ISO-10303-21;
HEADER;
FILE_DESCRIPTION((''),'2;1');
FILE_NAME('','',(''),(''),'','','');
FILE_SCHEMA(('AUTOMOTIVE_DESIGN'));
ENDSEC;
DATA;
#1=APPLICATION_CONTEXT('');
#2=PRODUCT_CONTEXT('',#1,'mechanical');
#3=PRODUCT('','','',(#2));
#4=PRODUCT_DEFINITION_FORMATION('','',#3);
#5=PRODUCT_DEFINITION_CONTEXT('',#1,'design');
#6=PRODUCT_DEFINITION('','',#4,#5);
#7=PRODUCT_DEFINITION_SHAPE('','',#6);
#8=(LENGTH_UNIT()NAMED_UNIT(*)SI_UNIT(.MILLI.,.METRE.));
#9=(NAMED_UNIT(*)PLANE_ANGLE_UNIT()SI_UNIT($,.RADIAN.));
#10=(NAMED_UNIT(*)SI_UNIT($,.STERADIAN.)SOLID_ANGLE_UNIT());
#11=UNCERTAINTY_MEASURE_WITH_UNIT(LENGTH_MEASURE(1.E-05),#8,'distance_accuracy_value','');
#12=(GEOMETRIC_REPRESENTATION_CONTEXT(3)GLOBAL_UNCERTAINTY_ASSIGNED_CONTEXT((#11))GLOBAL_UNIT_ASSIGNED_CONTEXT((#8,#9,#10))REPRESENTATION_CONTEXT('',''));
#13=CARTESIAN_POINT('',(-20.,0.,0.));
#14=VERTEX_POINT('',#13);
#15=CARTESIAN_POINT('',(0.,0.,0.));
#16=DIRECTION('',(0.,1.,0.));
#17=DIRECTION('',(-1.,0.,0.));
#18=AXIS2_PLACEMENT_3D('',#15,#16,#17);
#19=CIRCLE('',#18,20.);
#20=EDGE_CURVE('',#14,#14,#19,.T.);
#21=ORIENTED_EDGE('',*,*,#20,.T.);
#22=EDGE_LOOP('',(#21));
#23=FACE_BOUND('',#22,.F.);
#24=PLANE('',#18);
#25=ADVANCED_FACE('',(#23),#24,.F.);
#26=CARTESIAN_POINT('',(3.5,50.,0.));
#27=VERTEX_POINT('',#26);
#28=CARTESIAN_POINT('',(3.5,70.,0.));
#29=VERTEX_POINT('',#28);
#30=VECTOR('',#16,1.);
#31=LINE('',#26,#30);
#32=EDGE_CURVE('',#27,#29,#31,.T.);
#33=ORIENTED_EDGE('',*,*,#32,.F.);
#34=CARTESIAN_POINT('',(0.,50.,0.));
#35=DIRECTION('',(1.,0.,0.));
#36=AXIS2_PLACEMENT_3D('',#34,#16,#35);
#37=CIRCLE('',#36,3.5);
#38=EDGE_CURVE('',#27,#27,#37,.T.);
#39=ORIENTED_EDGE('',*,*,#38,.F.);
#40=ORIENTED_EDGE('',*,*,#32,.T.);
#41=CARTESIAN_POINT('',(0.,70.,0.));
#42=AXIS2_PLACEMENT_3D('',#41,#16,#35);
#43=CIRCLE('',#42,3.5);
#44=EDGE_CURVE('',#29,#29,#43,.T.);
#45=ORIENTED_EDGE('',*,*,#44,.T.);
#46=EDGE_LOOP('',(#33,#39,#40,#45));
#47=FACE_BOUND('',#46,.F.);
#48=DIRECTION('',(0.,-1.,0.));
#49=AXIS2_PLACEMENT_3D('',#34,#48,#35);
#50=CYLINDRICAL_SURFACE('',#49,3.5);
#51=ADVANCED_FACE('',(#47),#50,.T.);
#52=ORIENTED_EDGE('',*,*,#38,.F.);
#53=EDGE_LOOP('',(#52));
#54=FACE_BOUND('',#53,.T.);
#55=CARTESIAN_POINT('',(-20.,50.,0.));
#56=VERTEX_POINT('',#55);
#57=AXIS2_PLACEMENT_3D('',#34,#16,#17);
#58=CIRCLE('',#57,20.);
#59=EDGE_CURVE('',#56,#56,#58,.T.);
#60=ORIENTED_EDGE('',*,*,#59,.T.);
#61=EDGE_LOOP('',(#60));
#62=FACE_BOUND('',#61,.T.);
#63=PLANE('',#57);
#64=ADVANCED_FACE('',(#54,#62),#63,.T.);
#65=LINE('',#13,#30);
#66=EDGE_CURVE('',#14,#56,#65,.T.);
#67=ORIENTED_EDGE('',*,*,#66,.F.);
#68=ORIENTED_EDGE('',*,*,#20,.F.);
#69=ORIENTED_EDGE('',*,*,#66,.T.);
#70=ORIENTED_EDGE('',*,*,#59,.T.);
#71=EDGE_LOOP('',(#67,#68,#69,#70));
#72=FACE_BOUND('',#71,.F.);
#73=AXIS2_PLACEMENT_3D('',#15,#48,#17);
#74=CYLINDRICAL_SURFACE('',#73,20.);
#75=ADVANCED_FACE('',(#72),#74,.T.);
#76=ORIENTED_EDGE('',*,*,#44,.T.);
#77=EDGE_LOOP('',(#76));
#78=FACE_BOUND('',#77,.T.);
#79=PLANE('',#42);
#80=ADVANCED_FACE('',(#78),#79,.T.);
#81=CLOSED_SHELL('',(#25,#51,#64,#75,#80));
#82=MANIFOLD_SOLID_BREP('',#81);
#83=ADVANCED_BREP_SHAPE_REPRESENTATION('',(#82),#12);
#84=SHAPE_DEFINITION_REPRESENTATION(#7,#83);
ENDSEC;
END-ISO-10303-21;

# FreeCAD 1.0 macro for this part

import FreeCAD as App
import Part
import Sketcher
Q = App.Units.Quantity

doc = App.newDocument("Part")
body = doc.addObject("PartDesign::Body", "Body")

sketch1 = body.newObject("Sketcher::SketchObject", "Sketch")
sketch1.AttachmentSupport = (doc.getObject("XZ_Plane"), [""])
sketch1.MapMode = "FlatFace"
sketch1.addGeometry(Part.Circle(App.Vector(0, 0, 0), App.Vector(0, 0, 1), 20), False)
sketch1.addConstraint(Sketcher.Constraint("Coincident", 0, 3, -1, 1))
sketch1.addConstraint(Sketcher.Constraint("Diameter", 0, Q("40 mm")))
pad1 = body.newObject("PartDesign::Pad", "Pad")
pad1.Profile = sketch1
pad1.Length = 50
pad1.Reversed = True

sketch2 = body.newObject("Sketcher::SketchObject", "Sketch001")
sketch2.AttachmentSupport = (doc.getObject("XZ_Plane"), [""])
sketch2.MapMode = "FlatFace"
sketch2.AttachmentOffset = App.Placement(App.Vector(0, 0, -50), App.Rotation())
sketch2.addGeometry(Part.Circle(App.Vector(0, 0, 0), App.Vector(0, 0, 1), 3.5), False)
sketch2.addConstraint(Sketcher.Constraint("Coincident", 0, 3, -1, 1))
sketch2.addConstraint(Sketcher.Constraint("Diameter", 0, Q("7 mm")))
pad2 = body.newObject("PartDesign::Pad", "Pad001")
pad2.Profile = sketch2
pad2.Length = 20
pad2.Reversed = True

doc.recompute()
